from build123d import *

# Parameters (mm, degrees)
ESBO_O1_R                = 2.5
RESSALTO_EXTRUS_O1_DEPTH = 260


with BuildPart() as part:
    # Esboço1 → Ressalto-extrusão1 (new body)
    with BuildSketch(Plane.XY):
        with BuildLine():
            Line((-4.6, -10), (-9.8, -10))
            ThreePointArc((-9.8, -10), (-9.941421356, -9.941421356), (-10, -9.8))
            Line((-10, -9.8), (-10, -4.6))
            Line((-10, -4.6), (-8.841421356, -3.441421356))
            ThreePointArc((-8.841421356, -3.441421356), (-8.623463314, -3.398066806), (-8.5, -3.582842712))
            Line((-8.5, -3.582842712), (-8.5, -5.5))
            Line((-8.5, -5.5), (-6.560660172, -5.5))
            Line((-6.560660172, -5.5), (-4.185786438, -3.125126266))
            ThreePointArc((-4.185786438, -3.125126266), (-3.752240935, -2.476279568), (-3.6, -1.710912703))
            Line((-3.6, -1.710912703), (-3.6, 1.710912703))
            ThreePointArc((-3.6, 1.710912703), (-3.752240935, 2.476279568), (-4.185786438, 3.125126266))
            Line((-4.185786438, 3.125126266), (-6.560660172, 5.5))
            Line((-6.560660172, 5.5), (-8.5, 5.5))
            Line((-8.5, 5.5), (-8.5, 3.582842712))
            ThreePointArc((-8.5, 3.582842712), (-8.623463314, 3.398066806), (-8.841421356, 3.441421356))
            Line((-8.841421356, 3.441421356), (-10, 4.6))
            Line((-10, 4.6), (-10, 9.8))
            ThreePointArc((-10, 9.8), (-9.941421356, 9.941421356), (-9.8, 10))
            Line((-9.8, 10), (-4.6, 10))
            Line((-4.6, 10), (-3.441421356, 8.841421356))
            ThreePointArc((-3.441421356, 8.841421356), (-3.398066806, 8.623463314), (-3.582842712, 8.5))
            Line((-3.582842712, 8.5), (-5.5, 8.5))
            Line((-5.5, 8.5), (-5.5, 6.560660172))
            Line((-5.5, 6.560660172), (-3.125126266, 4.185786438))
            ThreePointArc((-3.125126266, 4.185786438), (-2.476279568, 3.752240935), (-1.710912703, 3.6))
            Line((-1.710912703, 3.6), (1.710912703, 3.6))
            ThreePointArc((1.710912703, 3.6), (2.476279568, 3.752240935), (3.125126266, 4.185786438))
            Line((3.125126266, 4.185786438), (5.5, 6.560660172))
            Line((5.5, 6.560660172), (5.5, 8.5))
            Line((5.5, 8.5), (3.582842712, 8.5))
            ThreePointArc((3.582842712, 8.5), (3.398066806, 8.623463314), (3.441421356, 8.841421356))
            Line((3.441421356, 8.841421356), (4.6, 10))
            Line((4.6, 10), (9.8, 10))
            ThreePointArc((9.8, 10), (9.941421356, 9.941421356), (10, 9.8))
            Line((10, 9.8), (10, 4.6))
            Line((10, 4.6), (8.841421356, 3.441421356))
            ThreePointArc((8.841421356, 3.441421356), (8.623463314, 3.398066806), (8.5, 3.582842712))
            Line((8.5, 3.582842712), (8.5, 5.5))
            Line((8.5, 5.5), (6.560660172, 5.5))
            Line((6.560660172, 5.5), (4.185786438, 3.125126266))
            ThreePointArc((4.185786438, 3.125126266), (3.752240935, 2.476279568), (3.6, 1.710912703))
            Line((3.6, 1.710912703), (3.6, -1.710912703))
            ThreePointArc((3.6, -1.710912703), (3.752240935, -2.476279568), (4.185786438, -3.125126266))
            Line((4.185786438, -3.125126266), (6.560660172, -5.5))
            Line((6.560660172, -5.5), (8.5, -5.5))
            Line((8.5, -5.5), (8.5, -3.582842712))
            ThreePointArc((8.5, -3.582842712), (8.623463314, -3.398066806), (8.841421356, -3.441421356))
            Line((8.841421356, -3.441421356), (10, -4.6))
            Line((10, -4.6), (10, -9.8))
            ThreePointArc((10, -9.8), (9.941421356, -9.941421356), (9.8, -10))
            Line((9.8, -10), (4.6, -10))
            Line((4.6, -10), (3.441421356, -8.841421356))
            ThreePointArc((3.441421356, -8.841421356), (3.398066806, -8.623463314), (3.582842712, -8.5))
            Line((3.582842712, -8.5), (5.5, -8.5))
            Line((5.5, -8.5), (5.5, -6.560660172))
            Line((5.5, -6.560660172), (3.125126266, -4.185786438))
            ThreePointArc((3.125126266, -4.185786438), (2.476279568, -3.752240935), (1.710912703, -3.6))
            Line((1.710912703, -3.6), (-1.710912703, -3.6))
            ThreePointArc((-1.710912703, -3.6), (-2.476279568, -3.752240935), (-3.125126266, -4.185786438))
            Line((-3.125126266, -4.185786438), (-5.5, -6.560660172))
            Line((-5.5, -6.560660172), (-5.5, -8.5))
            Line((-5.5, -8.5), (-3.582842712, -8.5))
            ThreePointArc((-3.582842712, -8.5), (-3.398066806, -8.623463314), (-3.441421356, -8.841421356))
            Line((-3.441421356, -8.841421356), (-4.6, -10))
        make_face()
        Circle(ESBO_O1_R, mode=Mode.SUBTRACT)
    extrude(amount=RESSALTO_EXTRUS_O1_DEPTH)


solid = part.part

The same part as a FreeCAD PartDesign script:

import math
import FreeCAD as App
import Part
import Sketcher
from FreeCAD import Vector
Q = App.Units.Quantity

doc = App.newDocument("Part")
body = doc.addObject("PartDesign::Body", "Body")

# Sketch on XY plane
sketch1 = body.newObject("Sketcher::SketchObject", "Sketch")
sketch1.AttachmentSupport = (doc.getObject("XY_Plane"), [""])
sketch1.MapMode = "FlatFace"
sketch1.addGeometry([
    Part.LineSegment(Vector(-9.8, -10, 0), Vector(-4.6, -10, 0)),  # 0
    Part.LineSegment(Vector(-4.6, -10, 0), Vector(-3.441421, -8.841421, 0)),  # 1
    Part.ArcOfCircle(Part.Circle(Vector(-3.582843, -8.7, 0), Vector(0, 0, 1), 0.2), math.radians(-45), math.radians(90)),  # 2
    Part.LineSegment(Vector(-3.582843, -8.5, 0), Vector(-5.5, -8.5, 0)),  # 3
    Part.LineSegment(Vector(-5.5, -8.5, 0), Vector(-5.5, -6.56066, 0)),  # 4
    Part.LineSegment(Vector(-5.5, -6.56066, 0), Vector(-3.125126, -4.185786, 0)),  # 5
    Part.ArcOfCircle(Part.Circle(Vector(-1.710913, -5.6, 0), Vector(0, 0, 1), 2), math.radians(90), math.radians(135)),  # 6
    Part.LineSegment(Vector(-1.710913, -3.6, 0), Vector(1.710913, -3.6, 0)),  # 7
    Part.ArcOfCircle(Part.Circle(Vector(1.710913, -5.6, 0), Vector(0, 0, 1), 2), math.radians(45), math.radians(90)),  # 8
    Part.LineSegment(Vector(3.125126, -4.185786, 0), Vector(5.5, -6.56066, 0)),  # 9
    Part.LineSegment(Vector(5.5, -6.56066, 0), Vector(5.5, -8.5, 0)),  # 10
    Part.LineSegment(Vector(5.5, -8.5, 0), Vector(3.582843, -8.5, 0)),  # 11
    Part.ArcOfCircle(Part.Circle(Vector(3.582843, -8.7, 0), Vector(0, 0, 1), 0.2), math.radians(90), math.radians(225)),  # 12
    Part.LineSegment(Vector(3.441421, -8.841421, 0), Vector(4.6, -10, 0)),  # 13
    Part.LineSegment(Vector(4.6, -10, 0), Vector(9.8, -10, 0)),  # 14
    Part.ArcOfCircle(Part.Circle(Vector(9.8, -9.8, 0), Vector(0, 0, 1), 0.2), math.radians(-90), math.radians(0)),  # 15
    Part.LineSegment(Vector(10, -9.8, 0), Vector(10, -4.6, 0)),  # 16
    Part.LineSegment(Vector(10, -4.6, 0), Vector(8.841421, -3.441421, 0)),  # 17
    Part.ArcOfCircle(Part.Circle(Vector(8.7, -3.582843, 0), Vector(0, 0, 1), 0.2), math.radians(45), math.radians(180)),  # 18
    Part.LineSegment(Vector(8.5, -3.582843, 0), Vector(8.5, -5.5, 0)),  # 19
    Part.LineSegment(Vector(8.5, -5.5, 0), Vector(6.56066, -5.5, 0)),  # 20
    Part.LineSegment(Vector(6.56066, -5.5, 0), Vector(4.185786, -3.125126, 0)),  # 21
    Part.ArcOfCircle(Part.Circle(Vector(5.6, -1.710913, 0), Vector(0, 0, 1), 2), math.radians(180), math.radians(225)),  # 22
    Part.LineSegment(Vector(3.6, -1.710913, 0), Vector(3.6, 1.710913, 0)),  # 23
    Part.ArcOfCircle(Part.Circle(Vector(5.6, 1.710913, 0), Vector(0, 0, 1), 2), math.radians(135), math.radians(180)),  # 24
    Part.LineSegment(Vector(4.185786, 3.125126, 0), Vector(6.56066, 5.5, 0)),  # 25
    Part.LineSegment(Vector(6.56066, 5.5, 0), Vector(8.5, 5.5, 0)),  # 26
    Part.LineSegment(Vector(8.5, 5.5, 0), Vector(8.5, 3.582843, 0)),  # 27
    Part.ArcOfCircle(Part.Circle(Vector(8.7, 3.582843, 0), Vector(0, 0, 1), 0.2), math.radians(-180), math.radians(-45)),  # 28
    Part.LineSegment(Vector(8.841421, 3.441421, 0), Vector(10, 4.6, 0)),  # 29
    Part.LineSegment(Vector(10, 4.6, 0), Vector(10, 9.8, 0)),  # 30
    Part.ArcOfCircle(Part.Circle(Vector(9.8, 9.8, 0), Vector(0, 0, 1), 0.2), math.radians(0), math.radians(90)),  # 31
    Part.LineSegment(Vector(9.8, 10, 0), Vector(4.6, 10, 0)),  # 32
    Part.LineSegment(Vector(4.6, 10, 0), Vector(3.441421, 8.841421, 0)),  # 33
    Part.ArcOfCircle(Part.Circle(Vector(3.582843, 8.7, 0), Vector(0, 0, 1), 0.2), math.radians(135), math.radians(270)),  # 34
    Part.LineSegment(Vector(3.582843, 8.5, 0), Vector(5.5, 8.5, 0)),  # 35
    Part.LineSegment(Vector(5.5, 8.5, 0), Vector(5.5, 6.56066, 0)),  # 36
    Part.LineSegment(Vector(5.5, 6.56066, 0), Vector(3.125126, 4.185786, 0)),  # 37
    Part.ArcOfCircle(Part.Circle(Vector(1.710913, 5.6, 0), Vector(0, 0, 1), 2), math.radians(-90), math.radians(-45)),  # 38
    Part.LineSegment(Vector(1.710913, 3.6, 0), Vector(-1.710913, 3.6, 0)),  # 39
    Part.ArcOfCircle(Part.Circle(Vector(-1.710913, 5.6, 0), Vector(0, 0, 1), 2), math.radians(-135), math.radians(-90)),  # 40
    Part.LineSegment(Vector(-3.125126, 4.185786, 0), Vector(-5.5, 6.56066, 0)),  # 41
    Part.LineSegment(Vector(-5.5, 6.56066, 0), Vector(-5.5, 8.5, 0)),  # 42
    Part.LineSegment(Vector(-5.5, 8.5, 0), Vector(-3.582843, 8.5, 0)),  # 43
    Part.ArcOfCircle(Part.Circle(Vector(-3.582843, 8.7, 0), Vector(0, 0, 1), 0.2), math.radians(-90), math.radians(45)),  # 44
    Part.LineSegment(Vector(-3.441421, 8.841421, 0), Vector(-4.6, 10, 0)),  # 45
    Part.LineSegment(Vector(-4.6, 10, 0), Vector(-9.8, 10, 0)),  # 46
    Part.ArcOfCircle(Part.Circle(Vector(-9.8, 9.8, 0), Vector(0, 0, 1), 0.2), math.radians(90), math.radians(180)),  # 47
    Part.LineSegment(Vector(-10, 9.8, 0), Vector(-10, 4.6, 0)),  # 48
    Part.LineSegment(Vector(-10, 4.6, 0), Vector(-8.841421, 3.441421, 0)),  # 49
    Part.ArcOfCircle(Part.Circle(Vector(-8.7, 3.582843, 0), Vector(0, 0, 1), 0.2), math.radians(-135), math.radians(0)),  # 50
    Part.LineSegment(Vector(-8.5, 3.582843, 0), Vector(-8.5, 5.5, 0)),  # 51
    Part.LineSegment(Vector(-8.5, 5.5, 0), Vector(-6.56066, 5.5, 0)),  # 52
    Part.LineSegment(Vector(-6.56066, 5.5, 0), Vector(-4.185786, 3.125126, 0)),  # 53
    Part.ArcOfCircle(Part.Circle(Vector(-5.6, 1.710913, 0), Vector(0, 0, 1), 2), math.radians(0), math.radians(45)),  # 54
    Part.LineSegment(Vector(-3.6, 1.710913, 0), Vector(-3.6, -1.710913, 0)),  # 55
    Part.ArcOfCircle(Part.Circle(Vector(-5.6, -1.710913, 0), Vector(0, 0, 1), 2), math.radians(-45), math.radians(0)),  # 56
    Part.LineSegment(Vector(-4.185786, -3.125126, 0), Vector(-6.56066, -5.5, 0)),  # 57
    Part.LineSegment(Vector(-6.56066, -5.5, 0), Vector(-8.5, -5.5, 0)),  # 58
    Part.LineSegment(Vector(-8.5, -5.5, 0), Vector(-8.5, -3.582843, 0)),  # 59
    Part.ArcOfCircle(Part.Circle(Vector(-8.7, -3.582843, 0), Vector(0, 0, 1), 0.2), math.radians(0), math.radians(135)),  # 60
    Part.LineSegment(Vector(-8.841421, -3.441421, 0), Vector(-10, -4.6, 0)),  # 61
    Part.LineSegment(Vector(-10, -4.6, 0), Vector(-10, -9.8, 0)),  # 62
    Part.ArcOfCircle(Part.Circle(Vector(-9.8, -9.8, 0), Vector(0, 0, 1), 0.2), math.radians(-180), math.radians(-90)),  # 63
    Part.Circle(Vector(0, 0, 0), Vector(0, 0, 1), 2.5),  # 64
], False)
sketch1.addConstraint([
    Sketcher.Constraint("Coincident", 0, 2, 1, 1),
    Sketcher.Constraint("Tangent", 1, 2, 2, 1),
    Sketcher.Constraint("Tangent", 2, 2, 3, 1),
    Sketcher.Constraint("Coincident", 3, 2, 4, 1),
    Sketcher.Constraint("Coincident", 4, 2, 5, 1),
    Sketcher.Constraint("Tangent", 5, 2, 6, 2),
    Sketcher.Constraint("Tangent", 6, 1, 7, 1),
    Sketcher.Constraint("Tangent", 7, 2, 8, 2),
    Sketcher.Constraint("Tangent", 8, 1, 9, 1),
    Sketcher.Constraint("Coincident", 9, 2, 10, 1),
    Sketcher.Constraint("Coincident", 10, 2, 11, 1),
    Sketcher.Constraint("Tangent", 11, 2, 12, 1),
    Sketcher.Constraint("Tangent", 12, 2, 13, 1),
    Sketcher.Constraint("Coincident", 13, 2, 14, 1),
    Sketcher.Constraint("Tangent", 14, 2, 15, 1),
    Sketcher.Constraint("Tangent", 15, 2, 16, 1),
    Sketcher.Constraint("Coincident", 16, 2, 17, 1),
    Sketcher.Constraint("Tangent", 17, 2, 18, 1),
    Sketcher.Constraint("Tangent", 18, 2, 19, 1),
    Sketcher.Constraint("Coincident", 19, 2, 20, 1),
    Sketcher.Constraint("Coincident", 20, 2, 21, 1),
    Sketcher.Constraint("Tangent", 21, 2, 22, 2),
    Sketcher.Constraint("Tangent", 22, 1, 23, 1),
    Sketcher.Constraint("Tangent", 23, 2, 24, 2),
    Sketcher.Constraint("Tangent", 24, 1, 25, 1),
    Sketcher.Constraint("Coincident", 25, 2, 26, 1),
    Sketcher.Constraint("Coincident", 26, 2, 27, 1),
    Sketcher.Constraint("Tangent", 27, 2, 28, 1),
    Sketcher.Constraint("Tangent", 28, 2, 29, 1),
    Sketcher.Constraint("Coincident", 29, 2, 30, 1),
    Sketcher.Constraint("Tangent", 30, 2, 31, 1),
    Sketcher.Constraint("Tangent", 31, 2, 32, 1),
    Sketcher.Constraint("Coincident", 32, 2, 33, 1),
    Sketcher.Constraint("Tangent", 33, 2, 34, 1),
    Sketcher.Constraint("Tangent", 34, 2, 35, 1),
    Sketcher.Constraint("Coincident", 35, 2, 36, 1),
    Sketcher.Constraint("Coincident", 36, 2, 37, 1),
    Sketcher.Constraint("Tangent", 37, 2, 38, 2),
    Sketcher.Constraint("Tangent", 38, 1, 39, 1),
    Sketcher.Constraint("Tangent", 39, 2, 40, 2),
    Sketcher.Constraint("Tangent", 40, 1, 41, 1),
    Sketcher.Constraint("Coincident", 41, 2, 42, 1),
    Sketcher.Constraint("Coincident", 42, 2, 43, 1),
    Sketcher.Constraint("Tangent", 43, 2, 44, 1),
    Sketcher.Constraint("Tangent", 44, 2, 45, 1),
    Sketcher.Constraint("Coincident", 45, 2, 46, 1),
    Sketcher.Constraint("Tangent", 46, 2, 47, 1),
    Sketcher.Constraint("Tangent", 47, 2, 48, 1),
    Sketcher.Constraint("Coincident", 48, 2, 49, 1),
    Sketcher.Constraint("Tangent", 49, 2, 50, 1),
    Sketcher.Constraint("Tangent", 50, 2, 51, 1),
    Sketcher.Constraint("Coincident", 51, 2, 52, 1),
    Sketcher.Constraint("Coincident", 52, 2, 53, 1),
    Sketcher.Constraint("Tangent", 53, 2, 54, 2),
    Sketcher.Constraint("Tangent", 54, 1, 55, 1),
    Sketcher.Constraint("Tangent", 55, 2, 56, 2),
    Sketcher.Constraint("Tangent", 56, 1, 57, 1),
    Sketcher.Constraint("Coincident", 57, 2, 58, 1),
    Sketcher.Constraint("Coincident", 58, 2, 59, 1),
    Sketcher.Constraint("Tangent", 59, 2, 60, 1),
    Sketcher.Constraint("Tangent", 60, 2, 61, 1),
    Sketcher.Constraint("Coincident", 61, 2, 62, 1),
    Sketcher.Constraint("Tangent", 62, 2, 63, 1),
    Sketcher.Constraint("Tangent", 63, 2, 0, 1),
    Sketcher.Constraint("Horizontal", 0),
    Sketcher.Constraint("Horizontal", 3),
    Sketcher.Constraint("Vertical", 4),
    Sketcher.Constraint("Horizontal", 7),
    Sketcher.Constraint("Vertical", 10),
    Sketcher.Constraint("Horizontal", 11),
    Sketcher.Constraint("Horizontal", 14),
    Sketcher.Constraint("Vertical", 16),
    Sketcher.Constraint("Vertical", 19),
    Sketcher.Constraint("Horizontal", 20),
    Sketcher.Constraint("Vertical", 23),
    Sketcher.Constraint("Horizontal", 26),
    Sketcher.Constraint("Vertical", 27),
    Sketcher.Constraint("Vertical", 30),
    Sketcher.Constraint("Horizontal", 32),
    Sketcher.Constraint("Horizontal", 35),
    Sketcher.Constraint("Vertical", 36),
    Sketcher.Constraint("Horizontal", 39),
    Sketcher.Constraint("Vertical", 42),
    Sketcher.Constraint("Horizontal", 43),
    Sketcher.Constraint("Horizontal", 46),
    Sketcher.Constraint("Vertical", 48),
    Sketcher.Constraint("Vertical", 51),
    Sketcher.Constraint("Horizontal", 52),
    Sketcher.Constraint("Vertical", 55),
    Sketcher.Constraint("Horizontal", 58),
    Sketcher.Constraint("Vertical", 59),
    Sketcher.Constraint("Vertical", 62),
    Sketcher.Constraint("Coincident", 64, 3, -1, 1),
    Sketcher.Constraint("Equal", 6, 8),
    Sketcher.Constraint("Equal", 2, 12),
    Sketcher.Constraint("Equal", 12, 15),
    Sketcher.Constraint("Equal", 15, 18),
    Sketcher.Constraint("Equal", 8, 22),
    Sketcher.Constraint("Equal", 22, 24),
    Sketcher.Constraint("Equal", 18, 28),
    Sketcher.Constraint("Equal", 28, 31),
    Sketcher.Constraint("Equal", 31, 34),
    Sketcher.Constraint("Equal", 24, 38),
    Sketcher.Constraint("Equal", 38, 40),
    Sketcher.Constraint("Equal", 34, 44),
    Sketcher.Constraint("Equal", 44, 47),
    Sketcher.Constraint("Equal", 47, 50),
    Sketcher.Constraint("Equal", 40, 54),
    Sketcher.Constraint("Equal", 54, 56),
    Sketcher.Constraint("Equal", 50, 60),
    Sketcher.Constraint("Equal", 60, 63),
    Sketcher.Constraint("Symmetric", 2, 3, 34, 3, -1, 1),
    Sketcher.Constraint("Symmetric", 6, 3, 38, 3, -1, 1),
    Sketcher.Constraint("Symmetric", 12, 3, 44, 3, -1, 1),
    Sketcher.Constraint("Symmetric", 15, 3, 47, 3, -1, 1),
    Sketcher.Constraint("Symmetric", 18, 3, 50, 3, -1, 1),
    Sketcher.Constraint("Symmetric", 22, 3, 54, 3, -1, 1),
    Sketcher.Constraint("Symmetric", 28, 3, 60, 3, -1, 1),
    Sketcher.Constraint("Symmetric", 31, 3, 63, 3, -1, 1),
    Sketcher.Constraint("Symmetric", 4, 2, 36, 2, -1, 1),
    Sketcher.Constraint("Symmetric", 8, 1, 40, 1, -1, 1),
    Sketcher.Constraint("Symmetric", 20, 2, 52, 2, -1, 1),
    Sketcher.Constraint("Symmetric", 24, 1, 56, 1, -1, 1),
    Sketcher.Constraint("Symmetric", 2, 3, 12, 3, -2),
    Sketcher.Constraint("Symmetric", 31, 3, 47, 3, -2),
    Sketcher.Constraint("Symmetric", 28, 3, 50, 3, -2),
    Sketcher.Constraint("Symmetric", 5, 2, 8, 1, -2),
    Sketcher.Constraint("Symmetric", 25, 2, 52, 2, -2),
    Sketcher.Constraint("Parallel", 1, 5),
    Sketcher.Constraint("Perpendicular", 5, 9),
    Sketcher.Constraint("Parallel", 9, 13),
    Sketcher.Constraint("Parallel", 13, 17),
    Sketcher.Constraint("Parallel", 17, 21),
    Sketcher.Constraint("Perpendicular", 21, 25),
    Sketcher.Constraint("Parallel", 25, 29),
    Sketcher.Constraint("Parallel", 29, 33),
    Sketcher.Constraint("Parallel", 41, 45),
    Sketcher.Constraint("Parallel", 45, 49),
    Sketcher.Constraint("Parallel", 57, 61),
    Sketcher.Constraint("Horizontal", 4, 2, 9, 2),
    Sketcher.Constraint("Horizontal", 36, 2, 41, 2),
    Sketcher.Constraint("Horizontal", 20, 2, 57, 2),
    Sketcher.Constraint("Equal", 58, 4),
    Sketcher.Constraint("Equal", 46, 16),
    Sketcher.Constraint("Equal", 43, 19),
    Sketcher.Constraint("Equal", 39, 23),
    Sketcher.Constraint("Equal", 13, 17),
    Sketcher.Constraint("Equal", 9, 21),
    Sketcher.Constraint("Diameter", 64, Q("5 mm")),
    Sketcher.Constraint("Radius", 6, Q("2 mm")),
    Sketcher.Constraint("Radius", 2, Q("0.2 mm")),
    Sketcher.Constraint("DistanceX", 0, 1, 0, 2, Q("5.2 mm")),
    Sketcher.Constraint("DistanceY", 0, 2, -1, 1, Q("10 mm")),
    Sketcher.Constraint("DistanceY", 2, 3, -1, 1, Q("8.7 mm")),
    Sketcher.Constraint("DistanceY", 6, 3, -1, 1, Q("5.6 mm")),
    Sketcher.Constraint("DistanceX", 3, 2, -1, 1, Q("5.5 mm")),
    Sketcher.Constraint("DistanceX", 20, 2, 20, 1, Q("1.93934 mm")),
])
pad1 = body.newObject("PartDesign::Pad", "Pad")
pad1.Profile = sketch1
pad1.Length = 260

doc.recompute()
